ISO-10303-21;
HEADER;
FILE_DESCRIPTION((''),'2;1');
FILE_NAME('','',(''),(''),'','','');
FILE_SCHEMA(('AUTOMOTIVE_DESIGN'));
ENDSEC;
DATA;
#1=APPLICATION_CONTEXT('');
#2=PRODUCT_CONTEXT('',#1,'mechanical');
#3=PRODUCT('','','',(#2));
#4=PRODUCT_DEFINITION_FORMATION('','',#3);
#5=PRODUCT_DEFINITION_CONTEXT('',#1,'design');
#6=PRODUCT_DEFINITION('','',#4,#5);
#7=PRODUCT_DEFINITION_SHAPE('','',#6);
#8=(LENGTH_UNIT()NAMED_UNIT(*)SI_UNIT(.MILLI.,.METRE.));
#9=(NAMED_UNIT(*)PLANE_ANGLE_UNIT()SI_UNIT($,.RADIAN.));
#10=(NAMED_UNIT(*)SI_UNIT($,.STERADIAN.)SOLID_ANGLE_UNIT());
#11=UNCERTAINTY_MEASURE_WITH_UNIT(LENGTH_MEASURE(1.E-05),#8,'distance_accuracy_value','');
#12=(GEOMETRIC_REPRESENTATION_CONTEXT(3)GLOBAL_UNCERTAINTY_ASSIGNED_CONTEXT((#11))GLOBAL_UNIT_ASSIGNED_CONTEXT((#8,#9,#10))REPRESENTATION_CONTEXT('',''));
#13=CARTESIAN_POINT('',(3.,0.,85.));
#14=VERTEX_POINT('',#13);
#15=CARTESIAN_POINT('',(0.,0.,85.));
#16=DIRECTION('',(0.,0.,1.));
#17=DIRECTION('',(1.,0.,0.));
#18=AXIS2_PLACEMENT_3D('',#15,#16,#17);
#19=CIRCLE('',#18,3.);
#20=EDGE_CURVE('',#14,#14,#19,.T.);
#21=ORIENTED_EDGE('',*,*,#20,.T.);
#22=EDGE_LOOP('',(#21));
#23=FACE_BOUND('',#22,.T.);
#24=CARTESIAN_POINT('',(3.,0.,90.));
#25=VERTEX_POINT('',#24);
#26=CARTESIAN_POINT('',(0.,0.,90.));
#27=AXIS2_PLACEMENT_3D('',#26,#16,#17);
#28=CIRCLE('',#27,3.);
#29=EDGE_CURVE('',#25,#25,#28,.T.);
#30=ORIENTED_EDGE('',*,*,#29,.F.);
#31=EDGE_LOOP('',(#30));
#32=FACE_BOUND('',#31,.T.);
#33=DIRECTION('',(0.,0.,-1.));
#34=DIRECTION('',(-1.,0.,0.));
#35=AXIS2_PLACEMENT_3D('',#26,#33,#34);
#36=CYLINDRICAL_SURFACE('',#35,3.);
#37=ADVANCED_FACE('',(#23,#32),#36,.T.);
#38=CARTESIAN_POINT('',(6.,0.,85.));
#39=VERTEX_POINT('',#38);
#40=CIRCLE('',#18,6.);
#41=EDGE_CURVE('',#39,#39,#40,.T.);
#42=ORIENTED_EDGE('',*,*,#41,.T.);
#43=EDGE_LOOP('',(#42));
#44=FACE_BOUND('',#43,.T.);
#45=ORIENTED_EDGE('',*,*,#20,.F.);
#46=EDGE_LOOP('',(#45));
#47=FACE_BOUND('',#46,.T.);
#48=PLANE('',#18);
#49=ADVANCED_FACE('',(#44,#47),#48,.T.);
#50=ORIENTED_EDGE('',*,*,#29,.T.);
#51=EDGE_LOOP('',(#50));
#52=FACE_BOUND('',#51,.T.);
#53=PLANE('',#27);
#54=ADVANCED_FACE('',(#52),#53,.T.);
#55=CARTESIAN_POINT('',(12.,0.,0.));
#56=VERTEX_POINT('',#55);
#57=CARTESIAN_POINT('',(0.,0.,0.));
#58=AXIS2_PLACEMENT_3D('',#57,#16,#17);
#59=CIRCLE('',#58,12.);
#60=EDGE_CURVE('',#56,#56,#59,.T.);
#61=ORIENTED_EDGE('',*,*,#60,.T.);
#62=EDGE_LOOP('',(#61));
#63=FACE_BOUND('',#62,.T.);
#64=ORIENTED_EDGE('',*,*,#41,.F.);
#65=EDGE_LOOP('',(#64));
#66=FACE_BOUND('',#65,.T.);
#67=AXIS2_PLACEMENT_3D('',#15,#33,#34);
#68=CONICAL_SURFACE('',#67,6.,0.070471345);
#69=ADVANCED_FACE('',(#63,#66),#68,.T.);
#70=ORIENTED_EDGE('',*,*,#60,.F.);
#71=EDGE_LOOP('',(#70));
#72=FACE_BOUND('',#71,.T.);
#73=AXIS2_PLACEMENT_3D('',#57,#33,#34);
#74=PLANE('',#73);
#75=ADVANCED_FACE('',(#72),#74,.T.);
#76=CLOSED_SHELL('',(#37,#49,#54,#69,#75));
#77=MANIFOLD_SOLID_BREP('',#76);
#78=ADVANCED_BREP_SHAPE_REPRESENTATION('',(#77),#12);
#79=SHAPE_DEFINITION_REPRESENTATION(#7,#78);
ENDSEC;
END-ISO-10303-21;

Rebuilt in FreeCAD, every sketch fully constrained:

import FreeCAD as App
import Part
import Sketcher
from FreeCAD import Vector
Q = App.Units.Quantity


def add_polygon(sketch, points):
    """Adds a closed chain of lines whose ends are joined by coincident constraints."""
    first, n = sketch.GeometryCount, len(points)
    for a, b in zip(points, points[1:] + points[:1]):
        sketch.addGeometry(Part.LineSegment(App.Vector(*a, 0), App.Vector(*b, 0)), False)
    for i in range(n):
        sketch.addConstraint(Sketcher.Constraint("Coincident", first + i, 2, first + (i + 1) % n, 1))

doc = App.newDocument("Part")
body = doc.addObject("PartDesign::Body", "Body")

# Sketch on XZ plane
sketch1 = body.newObject("Sketcher::SketchObject", "Sketch")
sketch1.AttachmentSupport = (doc.getObject("XZ_Plane"), [""])
sketch1.MapMode = "FlatFace"
add_polygon(sketch1, [(12, 0), (0, 0), (0, 85), (6, 85)])  # lines 0-3
sketch1.addConstraint([
    Sketcher.Constraint("Horizontal", 0),
    Sketcher.Constraint("Vertical", 1),
    Sketcher.Constraint("Horizontal", 2),
    Sketcher.Constraint("Coincident", 0, 2, -1, 1),
    Sketcher.Constraint("DistanceX", 0, 2, 0, 1, Q("12 mm")),
    Sketcher.Constraint("DistanceX", 2, 1, 2, 2, Q("6 mm")),
    Sketcher.Constraint("DistanceY", 1, 1, 1, 2, Q("85 mm")),
])
revolution = body.newObject("PartDesign::Revolution", "Revolution")
revolution.Profile = sketch1
revolution.ReferenceAxis = (sketch1, ["V_Axis"])
revolution.Angle = 360

# Sketch on XY plane
sketch2 = body.newObject("Sketcher::SketchObject", "Sketch001")
sketch2.AttachmentSupport = (doc.getObject("XY_Plane"), [""])
sketch2.MapMode = "FlatFace"
sketch2.AttachmentOffset = App.Placement(Vector(0, 0, 85), App.Rotation())
sketch2.addGeometry(Part.Circle(Vector(0, 0, 0), Vector(0, 0, 1), 3), False)
sketch2.addConstraint([
    Sketcher.Constraint("Coincident", 0, 3, -1, 1),
    Sketcher.Constraint("Diameter", 0, Q("6 mm")),
])
pad1 = body.newObject("PartDesign::Pad", "Pad")
pad1.Profile = sketch2
pad1.Length = 5

doc.recompute()
